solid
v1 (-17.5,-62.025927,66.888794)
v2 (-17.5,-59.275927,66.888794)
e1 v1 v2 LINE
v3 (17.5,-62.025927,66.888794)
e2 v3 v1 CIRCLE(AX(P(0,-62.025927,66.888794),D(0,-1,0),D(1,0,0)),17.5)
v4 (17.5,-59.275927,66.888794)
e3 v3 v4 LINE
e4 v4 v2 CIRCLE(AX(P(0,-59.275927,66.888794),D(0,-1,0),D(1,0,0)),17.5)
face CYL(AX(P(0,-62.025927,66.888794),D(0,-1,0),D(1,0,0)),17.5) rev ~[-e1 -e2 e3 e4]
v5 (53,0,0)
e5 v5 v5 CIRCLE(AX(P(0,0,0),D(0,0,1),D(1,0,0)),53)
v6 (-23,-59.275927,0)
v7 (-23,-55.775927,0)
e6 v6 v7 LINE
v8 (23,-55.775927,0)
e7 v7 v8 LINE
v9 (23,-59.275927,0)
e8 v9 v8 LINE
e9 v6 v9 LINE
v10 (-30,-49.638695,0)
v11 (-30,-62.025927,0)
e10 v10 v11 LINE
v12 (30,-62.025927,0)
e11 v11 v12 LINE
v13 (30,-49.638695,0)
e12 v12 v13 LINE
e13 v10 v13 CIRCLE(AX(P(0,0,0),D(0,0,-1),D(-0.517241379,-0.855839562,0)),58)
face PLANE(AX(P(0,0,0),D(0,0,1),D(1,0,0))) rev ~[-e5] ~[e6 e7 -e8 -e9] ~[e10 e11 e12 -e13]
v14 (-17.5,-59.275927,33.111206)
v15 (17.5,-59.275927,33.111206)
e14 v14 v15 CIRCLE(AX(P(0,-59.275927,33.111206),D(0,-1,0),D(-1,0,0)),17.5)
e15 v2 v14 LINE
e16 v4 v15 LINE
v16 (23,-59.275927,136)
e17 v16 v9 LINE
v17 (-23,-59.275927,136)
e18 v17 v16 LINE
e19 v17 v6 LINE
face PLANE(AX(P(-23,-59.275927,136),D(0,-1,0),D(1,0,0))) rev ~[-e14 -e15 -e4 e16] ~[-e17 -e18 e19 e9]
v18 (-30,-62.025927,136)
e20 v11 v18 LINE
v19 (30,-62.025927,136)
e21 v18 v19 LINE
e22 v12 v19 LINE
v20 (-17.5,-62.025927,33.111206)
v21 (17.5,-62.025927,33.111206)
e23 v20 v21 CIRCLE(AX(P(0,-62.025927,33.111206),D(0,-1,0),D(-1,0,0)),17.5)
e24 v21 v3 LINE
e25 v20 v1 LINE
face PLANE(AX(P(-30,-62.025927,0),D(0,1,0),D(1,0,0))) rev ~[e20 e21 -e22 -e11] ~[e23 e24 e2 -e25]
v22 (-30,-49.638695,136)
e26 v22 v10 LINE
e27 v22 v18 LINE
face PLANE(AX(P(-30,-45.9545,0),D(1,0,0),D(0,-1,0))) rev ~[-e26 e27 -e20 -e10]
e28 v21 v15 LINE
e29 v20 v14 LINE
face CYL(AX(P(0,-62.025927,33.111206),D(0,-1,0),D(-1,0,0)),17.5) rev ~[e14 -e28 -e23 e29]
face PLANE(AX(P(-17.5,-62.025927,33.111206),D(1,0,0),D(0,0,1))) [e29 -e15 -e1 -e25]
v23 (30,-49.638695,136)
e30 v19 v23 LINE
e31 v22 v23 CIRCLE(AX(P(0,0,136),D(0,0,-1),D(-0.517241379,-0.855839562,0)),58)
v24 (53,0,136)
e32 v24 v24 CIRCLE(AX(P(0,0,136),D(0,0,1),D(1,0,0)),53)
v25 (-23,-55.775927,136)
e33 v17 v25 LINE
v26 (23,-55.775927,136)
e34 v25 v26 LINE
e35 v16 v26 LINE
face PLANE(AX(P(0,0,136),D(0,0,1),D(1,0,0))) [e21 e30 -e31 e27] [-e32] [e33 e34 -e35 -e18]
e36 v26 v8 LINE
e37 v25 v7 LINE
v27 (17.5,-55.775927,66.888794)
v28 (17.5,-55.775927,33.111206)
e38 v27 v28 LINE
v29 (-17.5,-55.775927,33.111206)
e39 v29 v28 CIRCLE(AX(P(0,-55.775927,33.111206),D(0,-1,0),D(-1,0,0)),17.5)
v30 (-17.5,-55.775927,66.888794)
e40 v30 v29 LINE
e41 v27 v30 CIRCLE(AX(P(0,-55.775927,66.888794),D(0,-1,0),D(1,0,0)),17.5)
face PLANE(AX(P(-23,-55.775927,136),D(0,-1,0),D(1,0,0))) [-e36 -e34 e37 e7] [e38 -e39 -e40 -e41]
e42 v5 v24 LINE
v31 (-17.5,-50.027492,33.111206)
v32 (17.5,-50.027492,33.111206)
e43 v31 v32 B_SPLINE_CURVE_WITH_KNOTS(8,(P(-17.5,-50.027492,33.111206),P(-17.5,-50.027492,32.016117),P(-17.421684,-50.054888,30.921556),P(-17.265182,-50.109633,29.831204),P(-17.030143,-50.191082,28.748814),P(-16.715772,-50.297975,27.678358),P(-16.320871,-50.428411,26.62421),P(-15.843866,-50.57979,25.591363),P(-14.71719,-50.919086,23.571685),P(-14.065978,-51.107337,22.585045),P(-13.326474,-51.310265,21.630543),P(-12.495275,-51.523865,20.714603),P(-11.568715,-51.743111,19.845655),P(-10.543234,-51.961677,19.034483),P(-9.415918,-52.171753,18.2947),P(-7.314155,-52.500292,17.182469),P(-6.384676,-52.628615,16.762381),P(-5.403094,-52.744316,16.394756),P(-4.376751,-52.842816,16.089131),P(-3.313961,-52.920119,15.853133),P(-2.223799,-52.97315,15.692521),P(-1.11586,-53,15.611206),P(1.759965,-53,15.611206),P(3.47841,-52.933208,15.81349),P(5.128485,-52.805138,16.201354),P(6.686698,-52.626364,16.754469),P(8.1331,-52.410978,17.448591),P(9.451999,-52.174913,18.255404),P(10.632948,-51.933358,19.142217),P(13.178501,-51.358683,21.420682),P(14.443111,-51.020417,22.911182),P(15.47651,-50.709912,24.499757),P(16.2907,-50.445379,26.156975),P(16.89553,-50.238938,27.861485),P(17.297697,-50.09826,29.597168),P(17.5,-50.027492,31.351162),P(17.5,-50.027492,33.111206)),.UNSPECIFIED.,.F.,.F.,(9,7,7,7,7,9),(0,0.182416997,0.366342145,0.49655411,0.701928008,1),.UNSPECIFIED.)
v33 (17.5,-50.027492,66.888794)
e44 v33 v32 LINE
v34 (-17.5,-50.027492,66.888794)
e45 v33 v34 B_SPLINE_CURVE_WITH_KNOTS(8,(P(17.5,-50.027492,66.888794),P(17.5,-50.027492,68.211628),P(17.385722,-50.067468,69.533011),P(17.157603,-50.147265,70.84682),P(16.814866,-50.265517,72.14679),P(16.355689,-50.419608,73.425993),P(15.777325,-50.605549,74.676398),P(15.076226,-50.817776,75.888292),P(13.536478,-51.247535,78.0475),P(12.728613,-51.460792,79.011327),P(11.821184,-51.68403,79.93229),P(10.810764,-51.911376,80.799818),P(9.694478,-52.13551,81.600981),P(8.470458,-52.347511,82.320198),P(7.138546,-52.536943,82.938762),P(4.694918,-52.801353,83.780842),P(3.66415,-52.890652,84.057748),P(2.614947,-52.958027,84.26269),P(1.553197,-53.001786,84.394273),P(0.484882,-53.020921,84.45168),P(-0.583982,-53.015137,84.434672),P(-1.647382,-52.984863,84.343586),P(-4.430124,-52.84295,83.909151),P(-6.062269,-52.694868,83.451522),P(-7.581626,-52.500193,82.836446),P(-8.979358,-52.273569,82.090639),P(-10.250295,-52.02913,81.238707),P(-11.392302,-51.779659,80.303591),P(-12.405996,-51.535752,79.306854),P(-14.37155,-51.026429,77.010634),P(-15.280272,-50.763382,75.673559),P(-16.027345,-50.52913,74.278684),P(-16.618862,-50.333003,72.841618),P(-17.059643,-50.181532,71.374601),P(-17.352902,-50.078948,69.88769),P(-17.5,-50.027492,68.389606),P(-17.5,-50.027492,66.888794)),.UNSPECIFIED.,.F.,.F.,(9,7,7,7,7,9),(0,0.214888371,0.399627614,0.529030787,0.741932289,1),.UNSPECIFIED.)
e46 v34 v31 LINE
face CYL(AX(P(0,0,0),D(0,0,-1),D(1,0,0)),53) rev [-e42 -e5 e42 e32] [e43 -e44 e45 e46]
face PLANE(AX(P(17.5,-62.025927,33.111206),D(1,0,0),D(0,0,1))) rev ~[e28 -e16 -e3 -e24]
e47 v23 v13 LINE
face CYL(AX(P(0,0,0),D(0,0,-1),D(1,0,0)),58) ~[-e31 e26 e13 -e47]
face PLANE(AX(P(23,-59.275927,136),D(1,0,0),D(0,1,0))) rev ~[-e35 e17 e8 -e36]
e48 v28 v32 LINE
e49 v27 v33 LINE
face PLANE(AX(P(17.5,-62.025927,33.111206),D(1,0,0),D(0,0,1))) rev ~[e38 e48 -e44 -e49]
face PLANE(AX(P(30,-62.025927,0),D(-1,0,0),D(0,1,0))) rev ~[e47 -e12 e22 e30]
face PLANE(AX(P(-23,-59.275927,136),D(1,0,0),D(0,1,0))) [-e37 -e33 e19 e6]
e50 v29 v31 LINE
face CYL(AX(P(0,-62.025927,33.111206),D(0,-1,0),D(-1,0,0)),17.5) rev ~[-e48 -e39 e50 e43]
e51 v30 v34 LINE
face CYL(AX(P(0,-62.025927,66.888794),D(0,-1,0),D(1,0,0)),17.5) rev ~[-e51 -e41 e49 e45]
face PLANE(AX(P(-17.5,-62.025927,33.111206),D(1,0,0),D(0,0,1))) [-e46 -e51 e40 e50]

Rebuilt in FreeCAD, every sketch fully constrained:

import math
import FreeCAD as App
import Part
import Sketcher

doc = App.newDocument("Part")
body = doc.addObject("PartDesign::Body", "Body")

sketch1 = doc.addObject("Sketcher::SketchObject", "Sketch")
body.addObject(sketch1)
sketch1.AttachmentSupport = (doc.XY_Plane, [""])
sketch1.MapMode = "FlatFace"
sketch1.addGeometry([
    Part.Circle(App.Vector(0, 0, 0), App.Vector(0, 0, 1), 58),
    Part.Circle(App.Vector(0, 0, 0), App.Vector(0, 0, 1), 53),
], False)
sketch1.addConstraint([
    Sketcher.Constraint("Coincident", 0, 3, -1, 1),
    Sketcher.Constraint("Coincident", 1, 3, -1, 1),
    Sketcher.Constraint("Diameter", 0, 116.0),
    Sketcher.Constraint("Diameter", 1, 106.0),
])
pad1 = doc.addObject("PartDesign::Pad", "Pad")
body.addObject(pad1)
pad1.Profile = sketch1
pad1.Length = 136

sketch2 = doc.addObject("Sketcher::SketchObject", "Sketch001")
body.addObject(sketch2)
sketch2.AttachmentSupport = (doc.XY_Plane, [""])
sketch2.MapMode = "FlatFace"
sketch2.addGeometry([
    Part.LineSegment(App.Vector(-8.05435, -54.732766, 0), App.Vector(-30, -45.9545, 0)),
    Part.LineSegment(App.Vector(-30, -45.9545, 0), App.Vector(-30, -62.025927, 0)),
    Part.LineSegment(App.Vector(-30, -62.025927, 0), App.Vector(30, -62.025927, 0)),
    Part.LineSegment(App.Vector(30, -62.025927, 0), App.Vector(30, -47.670264, 0)),
    Part.LineSegment(App.Vector(30, -47.670264, 0), App.Vector(6.974748, -54.732766, 0)),
    Part.LineSegment(App.Vector(6.974748, -54.732766, 0), App.Vector(-8.05435, -54.732766, 0)),
], False)
sketch2.addConstraint([
    Sketcher.Constraint("Coincident", 0, 2, 1, 1),
    Sketcher.Constraint("Coincident", 1, 2, 2, 1),
    Sketcher.Constraint("Coincident", 2, 2, 3, 1),
    Sketcher.Constraint("Coincident", 3, 2, 4, 1),
    Sketcher.Constraint("Coincident", 4, 2, 5, 1),
    Sketcher.Constraint("Coincident", 5, 2, 0, 1),
    Sketcher.Constraint("Vertical", 1),
    Sketcher.Constraint("Horizontal", 2),
    Sketcher.Constraint("Vertical", 3),
    Sketcher.Constraint("Horizontal", 5),
    Sketcher.Constraint("DistanceX", 2, 1, 2, 2, 60.0),
    Sketcher.Constraint("DistanceX", 0, 2, -1, 1, 30.0),
    Sketcher.Constraint("DistanceY", 0, 2, -1, 1, 45.9545),
    Sketcher.Constraint("DistanceY", 4, 2, 3, 2, 7.062502),
    Sketcher.Constraint("Distance", 0, 23.636191),
    Sketcher.Constraint("DistanceX", 5, 2, 5, 1, 15.029098),
    Sketcher.Constraint("DistanceY", 1, 2, 1, 1, 16.071427),
    Sketcher.Constraint("DistanceY", 3, 1, 3, 2, 14.355663),
])
pad2 = doc.addObject("PartDesign::Pad", "Pad001")
body.addObject(pad2)
pad2.Profile = sketch2
pad2.Length = 136

sketch3 = doc.addObject("Sketcher::SketchObject", "Sketch002")
body.addObject(sketch3)
sketch3.AttachmentSupport = (doc.XZ_Plane, [""])
sketch3.MapMode = "FlatFace"
sketch3.AttachmentOffset = App.Placement(App.Vector(0, 0, 62.025927), App.Rotation())
sketch3.addGeometry([
    Part.LineSegment(App.Vector(-17.5, 66.888794, 0), App.Vector(-17.5, 33.111206, 0)),
    Part.ArcOfCircle(Part.Circle(App.Vector(0, 33.111206, 0), App.Vector(0, 0, 1), 17.5), math.radians(180), math.radians(360)),
    Part.LineSegment(App.Vector(17.5, 33.111206, 0), App.Vector(17.5, 66.888794, 0)),
    Part.ArcOfCircle(Part.Circle(App.Vector(0, 66.888794, 0), App.Vector(0, 0, 1), 17.5), math.radians(0), math.radians(180)),
], False)
sketch3.addConstraint([
    Sketcher.Constraint("Tangent", 0, 2, 1, 1),
    Sketcher.Constraint("Tangent", 1, 2, 2, 1),
    Sketcher.Constraint("Tangent", 2, 2, 3, 1),
    Sketcher.Constraint("Tangent", 3, 2, 0, 1),
    Sketcher.Constraint("Vertical", 0),
    Sketcher.Constraint("Vertical", 2),
    Sketcher.Constraint("PointOnObject", 1, 3, -2),
    Sketcher.Constraint("Radius", 1, 17.5),
    Sketcher.Constraint("DistanceY", 0, 2, 0, 1, 33.777588),
    Sketcher.Constraint("DistanceY", -1, 1, 1, 3, 33.111206),
])
pocket1 = doc.addObject("PartDesign::Pocket", "Pocket")
body.addObject(pocket1)
pocket1.Profile = sketch3
pocket1.Length = 25

sketch4 = doc.addObject("Sketcher::SketchObject", "Sketch003")
body.addObject(sketch4)
sketch4.AttachmentSupport = (doc.XY_Plane, [""])
sketch4.MapMode = "FlatFace"
sketch4.AttachmentOffset = App.Placement(App.Vector(0, 0, 136), App.Rotation())
sketch4.addGeometry([
    Part.LineSegment(App.Vector(-23, -55.775927, 0), App.Vector(-23, -59.275927, 0)),
    Part.LineSegment(App.Vector(-23, -59.275927, 0), App.Vector(23, -59.275927, 0)),
    Part.LineSegment(App.Vector(23, -59.275927, 0), App.Vector(23, -55.775927, 0)),
    Part.LineSegment(App.Vector(23, -55.775927, 0), App.Vector(-23, -55.775927, 0)),
], False)
sketch4.addConstraint([
    Sketcher.Constraint("Coincident", 0, 2, 1, 1),
    Sketcher.Constraint("Coincident", 1, 2, 2, 1),
    Sketcher.Constraint("Coincident", 2, 2, 3, 1),
    Sketcher.Constraint("Coincident", 3, 2, 0, 1),
    Sketcher.Constraint("Vertical", 0),
    Sketcher.Constraint("Horizontal", 1),
    Sketcher.Constraint("Vertical", 2),
    Sketcher.Constraint("Horizontal", 3),
    Sketcher.Constraint("DistanceX", 1, 1, 1, 2, 46.0),
    Sketcher.Constraint("DistanceY", 0, 2, 0, 1, 3.5),
    Sketcher.Constraint("DistanceX", 0, 2, -1, 1, 23.0),
    Sketcher.Constraint("DistanceY", 0, 2, -1, 1, 59.275927),
])
pocket2 = doc.addObject("PartDesign::Pocket", "Pocket001")
body.addObject(pocket2)
pocket2.Profile = sketch4
pocket2.Length = 136

doc.recompute()
